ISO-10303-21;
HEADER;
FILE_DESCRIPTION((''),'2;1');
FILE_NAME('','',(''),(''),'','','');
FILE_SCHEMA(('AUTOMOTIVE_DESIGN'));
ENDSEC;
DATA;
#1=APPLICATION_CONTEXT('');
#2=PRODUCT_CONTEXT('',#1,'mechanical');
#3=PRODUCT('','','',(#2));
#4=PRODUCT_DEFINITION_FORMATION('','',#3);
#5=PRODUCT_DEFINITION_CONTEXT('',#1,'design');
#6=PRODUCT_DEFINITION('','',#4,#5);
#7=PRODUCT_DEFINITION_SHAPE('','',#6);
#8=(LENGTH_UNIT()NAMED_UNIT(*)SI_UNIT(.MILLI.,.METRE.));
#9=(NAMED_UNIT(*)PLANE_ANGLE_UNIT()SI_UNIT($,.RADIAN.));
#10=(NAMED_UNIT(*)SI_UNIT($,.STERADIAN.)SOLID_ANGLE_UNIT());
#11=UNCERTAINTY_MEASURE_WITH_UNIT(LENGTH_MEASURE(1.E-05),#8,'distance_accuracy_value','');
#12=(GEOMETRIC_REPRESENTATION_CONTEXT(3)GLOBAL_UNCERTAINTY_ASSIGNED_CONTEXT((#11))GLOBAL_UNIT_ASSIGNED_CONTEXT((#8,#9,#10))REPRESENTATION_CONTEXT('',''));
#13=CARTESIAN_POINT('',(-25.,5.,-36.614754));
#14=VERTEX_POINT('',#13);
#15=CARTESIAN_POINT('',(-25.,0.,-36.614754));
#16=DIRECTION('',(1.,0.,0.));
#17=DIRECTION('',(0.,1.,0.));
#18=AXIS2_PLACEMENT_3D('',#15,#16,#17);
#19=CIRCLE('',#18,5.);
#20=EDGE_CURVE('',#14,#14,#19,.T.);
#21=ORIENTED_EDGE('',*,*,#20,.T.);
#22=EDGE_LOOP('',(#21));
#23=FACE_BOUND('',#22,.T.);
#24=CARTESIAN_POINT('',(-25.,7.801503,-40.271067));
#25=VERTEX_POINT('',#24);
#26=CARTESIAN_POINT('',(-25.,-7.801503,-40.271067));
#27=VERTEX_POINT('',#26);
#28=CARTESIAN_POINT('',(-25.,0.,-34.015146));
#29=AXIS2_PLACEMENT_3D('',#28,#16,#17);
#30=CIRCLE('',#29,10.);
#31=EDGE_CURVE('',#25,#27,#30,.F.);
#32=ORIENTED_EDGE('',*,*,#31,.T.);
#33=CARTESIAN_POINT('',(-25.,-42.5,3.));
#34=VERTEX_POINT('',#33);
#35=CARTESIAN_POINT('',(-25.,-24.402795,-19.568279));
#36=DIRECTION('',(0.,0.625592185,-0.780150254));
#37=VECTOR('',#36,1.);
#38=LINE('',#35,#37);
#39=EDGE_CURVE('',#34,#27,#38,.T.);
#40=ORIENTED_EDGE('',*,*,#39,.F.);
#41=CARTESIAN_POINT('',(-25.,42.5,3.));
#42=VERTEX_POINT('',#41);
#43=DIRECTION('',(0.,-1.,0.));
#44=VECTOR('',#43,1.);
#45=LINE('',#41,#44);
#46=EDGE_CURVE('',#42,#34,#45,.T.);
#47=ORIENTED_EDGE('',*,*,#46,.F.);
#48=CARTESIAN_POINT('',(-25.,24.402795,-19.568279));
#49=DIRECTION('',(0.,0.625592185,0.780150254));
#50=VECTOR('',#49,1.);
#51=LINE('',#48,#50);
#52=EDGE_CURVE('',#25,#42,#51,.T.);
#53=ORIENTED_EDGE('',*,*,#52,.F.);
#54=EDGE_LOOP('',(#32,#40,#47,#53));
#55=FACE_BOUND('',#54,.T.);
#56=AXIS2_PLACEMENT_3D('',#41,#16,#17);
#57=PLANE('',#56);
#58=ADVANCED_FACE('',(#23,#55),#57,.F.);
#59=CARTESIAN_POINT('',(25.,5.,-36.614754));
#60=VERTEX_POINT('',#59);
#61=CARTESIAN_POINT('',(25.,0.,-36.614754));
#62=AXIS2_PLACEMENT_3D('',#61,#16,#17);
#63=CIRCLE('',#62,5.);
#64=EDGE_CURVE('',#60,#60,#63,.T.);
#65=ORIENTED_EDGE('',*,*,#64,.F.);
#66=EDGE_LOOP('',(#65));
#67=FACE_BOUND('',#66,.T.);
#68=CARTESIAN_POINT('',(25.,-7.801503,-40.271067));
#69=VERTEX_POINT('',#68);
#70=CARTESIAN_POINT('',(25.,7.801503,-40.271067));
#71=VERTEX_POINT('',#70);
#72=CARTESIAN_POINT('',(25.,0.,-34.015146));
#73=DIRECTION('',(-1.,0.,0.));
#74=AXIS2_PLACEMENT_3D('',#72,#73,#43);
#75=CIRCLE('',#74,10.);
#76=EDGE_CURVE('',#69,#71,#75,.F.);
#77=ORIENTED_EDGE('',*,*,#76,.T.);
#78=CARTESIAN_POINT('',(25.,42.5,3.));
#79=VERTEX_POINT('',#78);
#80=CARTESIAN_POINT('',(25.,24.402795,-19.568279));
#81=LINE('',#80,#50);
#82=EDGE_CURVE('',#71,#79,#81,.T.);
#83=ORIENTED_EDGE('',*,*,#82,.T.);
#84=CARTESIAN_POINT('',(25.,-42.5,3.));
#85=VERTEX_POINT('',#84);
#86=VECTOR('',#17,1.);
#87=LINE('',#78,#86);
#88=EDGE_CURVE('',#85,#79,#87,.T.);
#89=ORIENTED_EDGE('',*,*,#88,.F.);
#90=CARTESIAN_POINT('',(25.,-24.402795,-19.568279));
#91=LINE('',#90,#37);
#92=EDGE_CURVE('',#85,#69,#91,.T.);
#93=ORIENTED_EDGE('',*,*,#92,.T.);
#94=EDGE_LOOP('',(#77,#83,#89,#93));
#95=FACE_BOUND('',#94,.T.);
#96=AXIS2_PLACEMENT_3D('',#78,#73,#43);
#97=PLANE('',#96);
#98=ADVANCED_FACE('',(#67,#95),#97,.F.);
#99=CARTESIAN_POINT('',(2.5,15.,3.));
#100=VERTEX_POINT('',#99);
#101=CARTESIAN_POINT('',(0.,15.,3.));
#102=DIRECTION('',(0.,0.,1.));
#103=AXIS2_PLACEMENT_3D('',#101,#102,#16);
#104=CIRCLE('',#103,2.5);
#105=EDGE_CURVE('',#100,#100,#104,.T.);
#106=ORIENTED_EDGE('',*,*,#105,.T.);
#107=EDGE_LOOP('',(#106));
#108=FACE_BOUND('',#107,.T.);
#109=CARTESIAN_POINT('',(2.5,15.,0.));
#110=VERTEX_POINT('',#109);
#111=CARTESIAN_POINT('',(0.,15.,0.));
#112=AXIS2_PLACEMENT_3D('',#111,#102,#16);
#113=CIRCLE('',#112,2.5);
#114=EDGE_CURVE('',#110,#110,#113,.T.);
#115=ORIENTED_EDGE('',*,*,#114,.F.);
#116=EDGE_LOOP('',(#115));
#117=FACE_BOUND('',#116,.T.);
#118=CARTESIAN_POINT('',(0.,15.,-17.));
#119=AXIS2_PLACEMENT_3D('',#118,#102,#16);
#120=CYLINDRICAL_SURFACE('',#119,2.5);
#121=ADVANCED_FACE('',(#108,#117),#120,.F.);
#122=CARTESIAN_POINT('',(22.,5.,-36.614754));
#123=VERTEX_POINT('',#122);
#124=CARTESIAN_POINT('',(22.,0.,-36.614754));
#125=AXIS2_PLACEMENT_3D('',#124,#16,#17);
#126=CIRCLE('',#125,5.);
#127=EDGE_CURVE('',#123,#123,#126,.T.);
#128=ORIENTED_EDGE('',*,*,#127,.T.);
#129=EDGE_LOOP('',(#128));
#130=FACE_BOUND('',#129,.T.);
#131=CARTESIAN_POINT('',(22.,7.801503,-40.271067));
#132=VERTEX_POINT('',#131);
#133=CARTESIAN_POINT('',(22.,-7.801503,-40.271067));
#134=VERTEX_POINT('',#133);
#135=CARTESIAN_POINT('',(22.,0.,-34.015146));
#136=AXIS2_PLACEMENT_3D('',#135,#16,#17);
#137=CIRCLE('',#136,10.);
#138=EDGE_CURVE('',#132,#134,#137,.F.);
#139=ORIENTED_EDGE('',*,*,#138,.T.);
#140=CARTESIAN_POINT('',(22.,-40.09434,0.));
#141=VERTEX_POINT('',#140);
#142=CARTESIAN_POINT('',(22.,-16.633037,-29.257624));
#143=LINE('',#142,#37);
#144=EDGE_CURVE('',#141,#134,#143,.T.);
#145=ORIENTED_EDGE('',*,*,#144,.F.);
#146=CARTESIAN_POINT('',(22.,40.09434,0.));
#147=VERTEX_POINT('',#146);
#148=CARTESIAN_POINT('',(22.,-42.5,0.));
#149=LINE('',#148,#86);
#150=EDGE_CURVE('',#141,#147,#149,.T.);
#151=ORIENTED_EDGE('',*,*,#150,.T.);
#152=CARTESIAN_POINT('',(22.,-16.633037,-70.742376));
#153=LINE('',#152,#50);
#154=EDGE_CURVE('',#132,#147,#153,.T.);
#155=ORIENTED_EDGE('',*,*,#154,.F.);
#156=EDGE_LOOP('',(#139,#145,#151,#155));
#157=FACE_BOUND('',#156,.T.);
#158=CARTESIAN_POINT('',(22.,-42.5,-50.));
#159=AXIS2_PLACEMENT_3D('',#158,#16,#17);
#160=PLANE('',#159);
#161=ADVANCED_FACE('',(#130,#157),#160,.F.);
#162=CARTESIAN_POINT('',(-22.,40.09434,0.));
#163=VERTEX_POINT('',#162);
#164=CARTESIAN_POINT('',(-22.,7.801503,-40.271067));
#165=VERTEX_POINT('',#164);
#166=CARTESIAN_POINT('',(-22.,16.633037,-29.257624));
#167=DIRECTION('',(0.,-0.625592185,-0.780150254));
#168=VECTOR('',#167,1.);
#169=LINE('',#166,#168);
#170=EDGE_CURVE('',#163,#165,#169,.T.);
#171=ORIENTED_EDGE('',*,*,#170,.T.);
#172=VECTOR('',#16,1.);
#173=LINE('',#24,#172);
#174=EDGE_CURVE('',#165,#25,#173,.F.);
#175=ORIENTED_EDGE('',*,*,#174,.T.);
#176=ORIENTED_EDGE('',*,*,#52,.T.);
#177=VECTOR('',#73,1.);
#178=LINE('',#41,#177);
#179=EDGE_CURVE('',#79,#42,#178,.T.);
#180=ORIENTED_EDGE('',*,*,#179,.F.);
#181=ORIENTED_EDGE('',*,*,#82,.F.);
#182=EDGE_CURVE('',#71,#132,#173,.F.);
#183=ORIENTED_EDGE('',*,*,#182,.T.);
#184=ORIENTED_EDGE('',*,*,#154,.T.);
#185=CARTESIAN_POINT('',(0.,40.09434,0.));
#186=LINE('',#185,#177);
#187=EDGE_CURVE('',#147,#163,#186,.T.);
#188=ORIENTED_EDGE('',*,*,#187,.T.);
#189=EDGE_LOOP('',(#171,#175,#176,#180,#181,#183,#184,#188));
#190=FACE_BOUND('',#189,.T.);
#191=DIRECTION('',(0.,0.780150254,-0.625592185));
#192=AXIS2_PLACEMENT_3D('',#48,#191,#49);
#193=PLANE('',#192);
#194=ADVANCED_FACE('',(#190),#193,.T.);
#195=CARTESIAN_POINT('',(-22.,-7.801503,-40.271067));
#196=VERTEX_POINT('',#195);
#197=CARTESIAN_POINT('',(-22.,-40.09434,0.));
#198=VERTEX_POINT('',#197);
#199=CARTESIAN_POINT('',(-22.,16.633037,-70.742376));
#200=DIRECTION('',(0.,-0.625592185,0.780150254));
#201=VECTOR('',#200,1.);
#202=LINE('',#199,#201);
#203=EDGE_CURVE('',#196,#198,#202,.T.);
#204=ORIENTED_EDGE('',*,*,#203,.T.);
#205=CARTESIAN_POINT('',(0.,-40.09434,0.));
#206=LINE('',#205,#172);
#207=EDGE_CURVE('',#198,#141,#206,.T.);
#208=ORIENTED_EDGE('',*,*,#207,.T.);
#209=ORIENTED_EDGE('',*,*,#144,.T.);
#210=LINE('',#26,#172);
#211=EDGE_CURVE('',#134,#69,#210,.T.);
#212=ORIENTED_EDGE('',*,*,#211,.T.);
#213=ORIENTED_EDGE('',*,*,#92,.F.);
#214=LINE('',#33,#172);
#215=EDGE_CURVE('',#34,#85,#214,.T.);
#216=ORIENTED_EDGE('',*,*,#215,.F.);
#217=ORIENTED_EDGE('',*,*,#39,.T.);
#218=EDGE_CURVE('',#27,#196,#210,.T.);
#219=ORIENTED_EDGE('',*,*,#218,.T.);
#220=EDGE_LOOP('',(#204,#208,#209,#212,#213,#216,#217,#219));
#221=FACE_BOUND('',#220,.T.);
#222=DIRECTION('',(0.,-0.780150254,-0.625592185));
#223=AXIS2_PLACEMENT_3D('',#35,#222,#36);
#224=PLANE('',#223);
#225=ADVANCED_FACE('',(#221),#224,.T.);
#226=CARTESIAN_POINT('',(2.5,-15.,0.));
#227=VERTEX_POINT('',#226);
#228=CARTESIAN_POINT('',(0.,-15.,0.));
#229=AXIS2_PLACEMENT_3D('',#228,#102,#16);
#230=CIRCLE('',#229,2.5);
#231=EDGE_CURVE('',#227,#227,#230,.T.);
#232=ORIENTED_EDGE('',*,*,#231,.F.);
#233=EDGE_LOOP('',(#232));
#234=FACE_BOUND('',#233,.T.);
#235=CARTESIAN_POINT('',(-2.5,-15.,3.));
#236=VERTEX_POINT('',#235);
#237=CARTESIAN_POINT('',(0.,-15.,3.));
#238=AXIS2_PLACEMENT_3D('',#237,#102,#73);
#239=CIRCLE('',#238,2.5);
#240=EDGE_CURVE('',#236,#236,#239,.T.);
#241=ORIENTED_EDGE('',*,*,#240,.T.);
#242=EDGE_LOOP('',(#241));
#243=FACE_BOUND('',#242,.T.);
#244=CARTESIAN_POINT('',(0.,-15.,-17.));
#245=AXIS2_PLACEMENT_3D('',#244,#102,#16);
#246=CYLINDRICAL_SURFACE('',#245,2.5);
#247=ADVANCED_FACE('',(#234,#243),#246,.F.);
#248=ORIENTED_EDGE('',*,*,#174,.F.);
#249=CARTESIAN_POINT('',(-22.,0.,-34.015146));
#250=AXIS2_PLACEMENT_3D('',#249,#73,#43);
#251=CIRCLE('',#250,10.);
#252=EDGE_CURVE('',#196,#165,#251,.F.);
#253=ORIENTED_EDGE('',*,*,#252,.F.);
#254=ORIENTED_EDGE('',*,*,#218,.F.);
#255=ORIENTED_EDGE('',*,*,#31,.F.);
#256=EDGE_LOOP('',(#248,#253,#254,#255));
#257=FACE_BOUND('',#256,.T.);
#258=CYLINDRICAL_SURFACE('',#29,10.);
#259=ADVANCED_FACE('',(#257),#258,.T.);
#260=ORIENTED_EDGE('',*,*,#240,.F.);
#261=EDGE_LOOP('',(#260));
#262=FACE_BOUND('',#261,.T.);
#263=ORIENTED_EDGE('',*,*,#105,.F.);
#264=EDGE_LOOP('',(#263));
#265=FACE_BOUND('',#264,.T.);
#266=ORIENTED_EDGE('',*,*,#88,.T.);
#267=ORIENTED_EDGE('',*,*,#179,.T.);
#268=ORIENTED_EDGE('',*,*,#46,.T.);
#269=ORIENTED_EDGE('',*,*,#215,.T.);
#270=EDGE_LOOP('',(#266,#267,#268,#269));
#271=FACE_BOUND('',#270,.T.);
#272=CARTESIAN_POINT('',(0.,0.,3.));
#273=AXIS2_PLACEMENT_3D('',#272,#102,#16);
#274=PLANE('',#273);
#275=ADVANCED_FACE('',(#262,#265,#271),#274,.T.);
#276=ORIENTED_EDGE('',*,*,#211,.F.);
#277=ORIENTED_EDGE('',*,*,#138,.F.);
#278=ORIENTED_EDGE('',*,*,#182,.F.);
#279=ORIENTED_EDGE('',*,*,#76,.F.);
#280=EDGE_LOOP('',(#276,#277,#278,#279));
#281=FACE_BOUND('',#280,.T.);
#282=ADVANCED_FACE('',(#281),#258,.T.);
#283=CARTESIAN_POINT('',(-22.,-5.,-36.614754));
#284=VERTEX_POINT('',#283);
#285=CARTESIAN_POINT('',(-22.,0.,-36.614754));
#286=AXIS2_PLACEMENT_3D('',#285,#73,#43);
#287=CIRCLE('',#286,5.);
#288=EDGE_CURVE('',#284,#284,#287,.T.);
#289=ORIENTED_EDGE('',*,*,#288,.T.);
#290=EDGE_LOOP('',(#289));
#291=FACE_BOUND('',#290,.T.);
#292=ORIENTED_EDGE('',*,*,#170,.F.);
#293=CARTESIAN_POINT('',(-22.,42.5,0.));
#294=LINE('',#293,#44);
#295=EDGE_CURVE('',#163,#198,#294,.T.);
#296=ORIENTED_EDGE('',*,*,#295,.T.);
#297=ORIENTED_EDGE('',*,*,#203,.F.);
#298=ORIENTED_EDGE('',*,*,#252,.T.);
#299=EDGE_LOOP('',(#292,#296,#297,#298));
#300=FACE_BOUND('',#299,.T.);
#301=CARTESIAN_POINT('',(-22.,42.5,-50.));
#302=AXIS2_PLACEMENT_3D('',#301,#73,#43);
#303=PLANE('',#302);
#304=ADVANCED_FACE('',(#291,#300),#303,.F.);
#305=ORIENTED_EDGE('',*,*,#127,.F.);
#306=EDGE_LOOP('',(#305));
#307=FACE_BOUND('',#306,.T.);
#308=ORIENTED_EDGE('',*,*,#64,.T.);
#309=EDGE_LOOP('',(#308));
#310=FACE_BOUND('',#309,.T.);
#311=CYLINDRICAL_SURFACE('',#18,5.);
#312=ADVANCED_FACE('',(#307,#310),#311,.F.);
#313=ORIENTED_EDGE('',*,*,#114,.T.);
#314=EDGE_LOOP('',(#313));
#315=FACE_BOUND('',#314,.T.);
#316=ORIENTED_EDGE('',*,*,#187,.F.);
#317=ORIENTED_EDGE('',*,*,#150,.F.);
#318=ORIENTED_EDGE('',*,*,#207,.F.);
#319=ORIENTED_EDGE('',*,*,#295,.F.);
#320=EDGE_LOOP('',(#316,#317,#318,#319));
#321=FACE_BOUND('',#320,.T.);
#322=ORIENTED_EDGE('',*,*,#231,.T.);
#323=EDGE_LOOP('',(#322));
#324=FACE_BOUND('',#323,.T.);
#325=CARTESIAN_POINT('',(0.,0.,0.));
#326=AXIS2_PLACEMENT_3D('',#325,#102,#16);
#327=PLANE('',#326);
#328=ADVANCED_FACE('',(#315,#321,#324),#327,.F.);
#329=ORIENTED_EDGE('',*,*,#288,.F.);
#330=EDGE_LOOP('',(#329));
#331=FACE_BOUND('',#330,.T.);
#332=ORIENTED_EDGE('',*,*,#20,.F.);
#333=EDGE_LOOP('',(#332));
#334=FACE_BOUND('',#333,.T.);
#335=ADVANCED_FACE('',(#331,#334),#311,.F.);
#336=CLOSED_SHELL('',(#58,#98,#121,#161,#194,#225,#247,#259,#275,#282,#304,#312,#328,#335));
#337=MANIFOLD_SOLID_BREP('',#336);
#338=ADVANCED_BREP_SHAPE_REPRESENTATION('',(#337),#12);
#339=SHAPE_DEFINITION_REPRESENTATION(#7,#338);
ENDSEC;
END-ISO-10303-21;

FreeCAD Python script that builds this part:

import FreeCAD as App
import Part
import Sketcher
from FreeCAD import Vector
Q = App.Units.Quantity


def edges_at(feature, points):
    """Names of the edges that pass closest to the given points."""
    edges = feature.Shape.Edges
    near = lambda p: min(range(len(edges)), key=lambda i: edges[i].distToShape(Part.Vertex(*p))[0])
    return sorted({f"Edge{near(p) + 1}" for p in points})


def add_polygon(sketch, points):
    """Adds a closed chain of lines whose ends are joined by coincident constraints."""
    first, n = sketch.GeometryCount, len(points)
    for a, b in zip(points, points[1:] + points[:1]):
        sketch.addGeometry(Part.LineSegment(App.Vector(*a, 0), App.Vector(*b, 0)), False)
    for i in range(n):
        sketch.addConstraint(Sketcher.Constraint("Coincident", first + i, 2, first + (i + 1) % n, 1))

doc = App.newDocument("Part")
body = doc.addObject("PartDesign::Body", "Body")

# Sketch on XY plane
sketch1 = body.newObject("Sketcher::SketchObject", "Sketch")
sketch1.AttachmentSupport = (doc.getObject("XY_Plane"), [""])
sketch1.MapMode = "FlatFace"
add_polygon(sketch1, [(-25, 42), (-25, -42), (25, -42), (25, 42)])  # lines 0-3
sketch1.addConstraint([
    Sketcher.Constraint("Vertical", 0),
    Sketcher.Constraint("Horizontal", 1),
    Sketcher.Constraint("Vertical", 2),
    Sketcher.Constraint("Horizontal", 3),
    Sketcher.Constraint("Symmetric", 0, 2, 2, 2, -1, 1),
    Sketcher.Constraint("DistanceX", 1, 1, 1, 2, Q("50 mm")),
    Sketcher.Constraint("DistanceY", 0, 2, 0, 1, Q("85 mm")),
])
pad1 = body.newObject("PartDesign::Pad", "Pad")
pad1.Profile = sketch1
pad1.Length = 3

# Sketch on XY plane
sketch2 = body.newObject("Sketcher::SketchObject", "Sketch001")
sketch2.AttachmentSupport = (doc.getObject("XY_Plane"), [""])
sketch2.MapMode = "FlatFace"
add_polygon(sketch2, [(25, 42.5), (25, -42.5), (22, -42.5), (22, 42.5)])  # lines 0-3
add_polygon(sketch2, [(-22, 42.5), (-22, -42.5), (-25, -42.5), (-25, 42.5)])  # lines 4-7
sketch2.addConstraint([
    Sketcher.Constraint("Vertical", 0),
    Sketcher.Constraint("Horizontal", 1),
    Sketcher.Constraint("Vertical", 2),
    Sketcher.Constraint("Horizontal", 3),
    Sketcher.Constraint("Vertical", 4),
    Sketcher.Constraint("Horizontal", 5),
    Sketcher.Constraint("Vertical", 6),
    Sketcher.Constraint("Horizontal", 7),
    Sketcher.Constraint("Symmetric", 2, 2, 4, 2, -1, 1),
    Sketcher.Constraint("Symmetric", 0, 2, 6, 2, -1, 1),
    Sketcher.Constraint("Horizontal", 1, 2, 4, 2),
    Sketcher.Constraint("DistanceX", 1, 2, 1, 1, Q("3 mm")),
    Sketcher.Constraint("DistanceY", 0, 2, 0, 1, Q("85 mm")),
    Sketcher.Constraint("DistanceX", -1, 1, 0, 2, Q("25 mm")),
])
pad2 = body.newObject("PartDesign::Pad", "Pad001")
pad2.Profile = sketch2
pad2.Length = 50
pad2.Reversed = True

# Sketch on YZ plane
sketch3 = body.newObject("Sketcher::SketchObject", "Sketch002")
sketch3.AttachmentSupport = (doc.getObject("YZ_Plane"), [""])
sketch3.MapMode = "FlatFace"
sketch3.AttachmentOffset = App.Placement(Vector(0, 0, 25), App.Rotation())
add_polygon(sketch3, [(0, -50), (-42, 3), (-42, -50)])  # lines 0-2
add_polygon(sketch3, [(42, 3), (0, -50), (42, -50)])  # lines 3-5
sketch3.addConstraint([
    Sketcher.Constraint("Vertical", 1),
    Sketcher.Constraint("Horizontal", 2),
    Sketcher.Constraint("Horizontal", 4),
    Sketcher.Constraint("Vertical", 5),
    Sketcher.Constraint("Coincident", 3, 2, 2, 2),
    Sketcher.Constraint("Symmetric", 0, 2, 5, 2, -2),
    Sketcher.Constraint("PointOnObject", 2, 2, -2),
    Sketcher.Constraint("DistanceY", 1, 2, 1, 1, Q("53 mm")),
    Sketcher.Constraint("DistanceX", 2, 1, 2, 2, Q("42.5 mm")),
    Sketcher.Constraint("DistanceY", -1, 1, 0, 2, Q("3 mm")),
])
pocket1 = body.newObject("PartDesign::Pocket", "Pocket")
pocket1.Profile = sketch3
pocket1.Length = 50
doc.recompute()

fillet = body.newObject("PartDesign::Fillet", "Fillet")
fillet.Base = (pocket1, edges_at(pocket1, [(23.5, 0, -50), (-23.5, 0, -50)]))
fillet.Radius = 10

# Sketch on YZ plane
sketch4 = body.newObject("Sketcher::SketchObject", "Sketch003")
sketch4.AttachmentSupport = (doc.getObject("YZ_Plane"), [""])
sketch4.MapMode = "FlatFace"
sketch4.AttachmentOffset = App.Placement(Vector(0, 0, 25), App.Rotation())
sketch4.addGeometry(Part.Circle(Vector(0, -37, 0), Vector(0, 0, 1), 5), False)
sketch4.addConstraint([
    Sketcher.Constraint("PointOnObject", 0, 3, -2),
    Sketcher.Constraint("Diameter", 0, Q("10 mm")),
    Sketcher.Constraint("DistanceY", 0, 3, -1, 1, Q("36.614754 mm")),
])
pocket2 = body.newObject("PartDesign::Pocket", "Pocket001")
pocket2.Profile = sketch4
pocket2.Length = 50

# Sketch on XY plane
sketch5 = body.newObject("Sketcher::SketchObject", "Sketch004")
sketch5.AttachmentSupport = (doc.getObject("XY_Plane"), [""])
sketch5.MapMode = "FlatFace"
sketch5.AttachmentOffset = App.Placement(Vector(0, 0, 3), App.Rotation())
sketch5.addGeometry([
    Part.Circle(Vector(0, 15, 0), Vector(0, 0, 1), 2.5),
    Part.Circle(Vector(0, -15, 0), Vector(0, 0, 1), 2.5),
], False)
sketch5.addConstraint([
    Sketcher.Constraint("Equal", 0, 1),
    Sketcher.Constraint("Symmetric", 0, 3, 1, 3, -1, 1),
    Sketcher.Constraint("PointOnObject", 0, 3, -2),
    Sketcher.Constraint("Diameter", 0, Q("5 mm")),
    Sketcher.Constraint("DistanceY", -1, 1, 0, 3, Q("15 mm")),
])
pocket3 = body.newObject("PartDesign::Pocket", "Pocket002")
pocket3.Profile = sketch5
pocket3.Length = 20

doc.recompute()
